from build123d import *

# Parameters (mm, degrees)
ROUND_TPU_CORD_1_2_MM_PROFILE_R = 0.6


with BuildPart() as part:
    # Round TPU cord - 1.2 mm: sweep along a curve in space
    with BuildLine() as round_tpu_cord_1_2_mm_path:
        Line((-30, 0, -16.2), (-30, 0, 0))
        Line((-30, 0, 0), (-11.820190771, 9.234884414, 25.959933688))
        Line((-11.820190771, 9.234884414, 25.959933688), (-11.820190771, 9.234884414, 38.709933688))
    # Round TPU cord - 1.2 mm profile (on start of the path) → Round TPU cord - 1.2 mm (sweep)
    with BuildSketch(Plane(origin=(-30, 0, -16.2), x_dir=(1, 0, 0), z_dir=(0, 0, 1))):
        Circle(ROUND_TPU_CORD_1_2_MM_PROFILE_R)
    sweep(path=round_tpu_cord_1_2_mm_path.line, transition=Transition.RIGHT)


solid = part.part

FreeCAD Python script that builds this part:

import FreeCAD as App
import Part
import Sketcher

V = App.Vector
Q = App.Units.Quantity

doc = App.newDocument("Part")
body = doc.addObject("PartDesign::Body", "Body")

# Sketch on XY plane
sketch1 = body.newObject("Sketcher::SketchObject", "Sketch")
sketch1.AttachmentSupport = (doc.getObject("XY_Plane"), [""])
sketch1.MapMode = "FlatFace"
sketch1.AttachmentOffset = App.Placement(V(0, 0, -16.2), App.Rotation())
sketch1.addGeometry(Part.Circle(V(-30, 0, 0), V(0, 0, 1), 0.6), False)
sketch1.addConstraint([
    Sketcher.Constraint("PointOnObject", 0, 3, -1),
    Sketcher.Constraint("Diameter", 0, Q("1.2 mm")),
    Sketcher.Constraint("DistanceX", 0, 3, -1, 1, Q("30 mm")),
])

# Sketch on an angled plane
sketch2 = body.newObject("Sketcher::SketchObject", "Sketch001")
sketch2.Placement = App.Placement(V(-6.15335, 12.113496, 0), App.Rotation(V(-0.891565094, -0.452892574, 0), V(0, 0, 1), V(-0.452892574, 0.891565094, 0), "ZXY"))
sketch2.addGeometry([
    Part.LineSegment(V(27, -16, 0), V(27, 0, 0)),
    Part.LineSegment(V(27, 0, 0), V(6, 26, 0)),
    Part.LineSegment(V(6, 26, 0), V(6, 39, 0)),
], False)
sketch2.addConstraint([
    Sketcher.Constraint("Coincident", 0, 2, 1, 1),
    Sketcher.Constraint("Coincident", 1, 2, 2, 1),
    Sketcher.Constraint("Vertical", 0),
    Sketcher.Constraint("Vertical", 2),
    Sketcher.Constraint("PointOnObject", 0, 2, -1),
    Sketcher.Constraint("DistanceY", 0, 1, 0, 2, Q("16.2 mm")),
    Sketcher.Constraint("DistanceY", 2, 1, 2, 2, Q("12.75 mm")),
    Sketcher.Constraint("DistanceX", -1, 1, 1, 2, Q("6.356059 mm")),
    Sketcher.Constraint("Distance", 1, Q("33.010706 mm")),
    Sketcher.Constraint("DistanceX", -1, 1, 0, 1, Q("26.746953 mm")),
])
doc.recompute()

additivepipe = body.newObject("PartDesign::AdditivePipe", "AdditivePipe")
additivepipe.Profile = sketch1
additivepipe.Spine = (sketch2, ["Edge1", "Edge2", "Edge3"])
additivepipe.Transition = "Right corner"

doc.recompute()
